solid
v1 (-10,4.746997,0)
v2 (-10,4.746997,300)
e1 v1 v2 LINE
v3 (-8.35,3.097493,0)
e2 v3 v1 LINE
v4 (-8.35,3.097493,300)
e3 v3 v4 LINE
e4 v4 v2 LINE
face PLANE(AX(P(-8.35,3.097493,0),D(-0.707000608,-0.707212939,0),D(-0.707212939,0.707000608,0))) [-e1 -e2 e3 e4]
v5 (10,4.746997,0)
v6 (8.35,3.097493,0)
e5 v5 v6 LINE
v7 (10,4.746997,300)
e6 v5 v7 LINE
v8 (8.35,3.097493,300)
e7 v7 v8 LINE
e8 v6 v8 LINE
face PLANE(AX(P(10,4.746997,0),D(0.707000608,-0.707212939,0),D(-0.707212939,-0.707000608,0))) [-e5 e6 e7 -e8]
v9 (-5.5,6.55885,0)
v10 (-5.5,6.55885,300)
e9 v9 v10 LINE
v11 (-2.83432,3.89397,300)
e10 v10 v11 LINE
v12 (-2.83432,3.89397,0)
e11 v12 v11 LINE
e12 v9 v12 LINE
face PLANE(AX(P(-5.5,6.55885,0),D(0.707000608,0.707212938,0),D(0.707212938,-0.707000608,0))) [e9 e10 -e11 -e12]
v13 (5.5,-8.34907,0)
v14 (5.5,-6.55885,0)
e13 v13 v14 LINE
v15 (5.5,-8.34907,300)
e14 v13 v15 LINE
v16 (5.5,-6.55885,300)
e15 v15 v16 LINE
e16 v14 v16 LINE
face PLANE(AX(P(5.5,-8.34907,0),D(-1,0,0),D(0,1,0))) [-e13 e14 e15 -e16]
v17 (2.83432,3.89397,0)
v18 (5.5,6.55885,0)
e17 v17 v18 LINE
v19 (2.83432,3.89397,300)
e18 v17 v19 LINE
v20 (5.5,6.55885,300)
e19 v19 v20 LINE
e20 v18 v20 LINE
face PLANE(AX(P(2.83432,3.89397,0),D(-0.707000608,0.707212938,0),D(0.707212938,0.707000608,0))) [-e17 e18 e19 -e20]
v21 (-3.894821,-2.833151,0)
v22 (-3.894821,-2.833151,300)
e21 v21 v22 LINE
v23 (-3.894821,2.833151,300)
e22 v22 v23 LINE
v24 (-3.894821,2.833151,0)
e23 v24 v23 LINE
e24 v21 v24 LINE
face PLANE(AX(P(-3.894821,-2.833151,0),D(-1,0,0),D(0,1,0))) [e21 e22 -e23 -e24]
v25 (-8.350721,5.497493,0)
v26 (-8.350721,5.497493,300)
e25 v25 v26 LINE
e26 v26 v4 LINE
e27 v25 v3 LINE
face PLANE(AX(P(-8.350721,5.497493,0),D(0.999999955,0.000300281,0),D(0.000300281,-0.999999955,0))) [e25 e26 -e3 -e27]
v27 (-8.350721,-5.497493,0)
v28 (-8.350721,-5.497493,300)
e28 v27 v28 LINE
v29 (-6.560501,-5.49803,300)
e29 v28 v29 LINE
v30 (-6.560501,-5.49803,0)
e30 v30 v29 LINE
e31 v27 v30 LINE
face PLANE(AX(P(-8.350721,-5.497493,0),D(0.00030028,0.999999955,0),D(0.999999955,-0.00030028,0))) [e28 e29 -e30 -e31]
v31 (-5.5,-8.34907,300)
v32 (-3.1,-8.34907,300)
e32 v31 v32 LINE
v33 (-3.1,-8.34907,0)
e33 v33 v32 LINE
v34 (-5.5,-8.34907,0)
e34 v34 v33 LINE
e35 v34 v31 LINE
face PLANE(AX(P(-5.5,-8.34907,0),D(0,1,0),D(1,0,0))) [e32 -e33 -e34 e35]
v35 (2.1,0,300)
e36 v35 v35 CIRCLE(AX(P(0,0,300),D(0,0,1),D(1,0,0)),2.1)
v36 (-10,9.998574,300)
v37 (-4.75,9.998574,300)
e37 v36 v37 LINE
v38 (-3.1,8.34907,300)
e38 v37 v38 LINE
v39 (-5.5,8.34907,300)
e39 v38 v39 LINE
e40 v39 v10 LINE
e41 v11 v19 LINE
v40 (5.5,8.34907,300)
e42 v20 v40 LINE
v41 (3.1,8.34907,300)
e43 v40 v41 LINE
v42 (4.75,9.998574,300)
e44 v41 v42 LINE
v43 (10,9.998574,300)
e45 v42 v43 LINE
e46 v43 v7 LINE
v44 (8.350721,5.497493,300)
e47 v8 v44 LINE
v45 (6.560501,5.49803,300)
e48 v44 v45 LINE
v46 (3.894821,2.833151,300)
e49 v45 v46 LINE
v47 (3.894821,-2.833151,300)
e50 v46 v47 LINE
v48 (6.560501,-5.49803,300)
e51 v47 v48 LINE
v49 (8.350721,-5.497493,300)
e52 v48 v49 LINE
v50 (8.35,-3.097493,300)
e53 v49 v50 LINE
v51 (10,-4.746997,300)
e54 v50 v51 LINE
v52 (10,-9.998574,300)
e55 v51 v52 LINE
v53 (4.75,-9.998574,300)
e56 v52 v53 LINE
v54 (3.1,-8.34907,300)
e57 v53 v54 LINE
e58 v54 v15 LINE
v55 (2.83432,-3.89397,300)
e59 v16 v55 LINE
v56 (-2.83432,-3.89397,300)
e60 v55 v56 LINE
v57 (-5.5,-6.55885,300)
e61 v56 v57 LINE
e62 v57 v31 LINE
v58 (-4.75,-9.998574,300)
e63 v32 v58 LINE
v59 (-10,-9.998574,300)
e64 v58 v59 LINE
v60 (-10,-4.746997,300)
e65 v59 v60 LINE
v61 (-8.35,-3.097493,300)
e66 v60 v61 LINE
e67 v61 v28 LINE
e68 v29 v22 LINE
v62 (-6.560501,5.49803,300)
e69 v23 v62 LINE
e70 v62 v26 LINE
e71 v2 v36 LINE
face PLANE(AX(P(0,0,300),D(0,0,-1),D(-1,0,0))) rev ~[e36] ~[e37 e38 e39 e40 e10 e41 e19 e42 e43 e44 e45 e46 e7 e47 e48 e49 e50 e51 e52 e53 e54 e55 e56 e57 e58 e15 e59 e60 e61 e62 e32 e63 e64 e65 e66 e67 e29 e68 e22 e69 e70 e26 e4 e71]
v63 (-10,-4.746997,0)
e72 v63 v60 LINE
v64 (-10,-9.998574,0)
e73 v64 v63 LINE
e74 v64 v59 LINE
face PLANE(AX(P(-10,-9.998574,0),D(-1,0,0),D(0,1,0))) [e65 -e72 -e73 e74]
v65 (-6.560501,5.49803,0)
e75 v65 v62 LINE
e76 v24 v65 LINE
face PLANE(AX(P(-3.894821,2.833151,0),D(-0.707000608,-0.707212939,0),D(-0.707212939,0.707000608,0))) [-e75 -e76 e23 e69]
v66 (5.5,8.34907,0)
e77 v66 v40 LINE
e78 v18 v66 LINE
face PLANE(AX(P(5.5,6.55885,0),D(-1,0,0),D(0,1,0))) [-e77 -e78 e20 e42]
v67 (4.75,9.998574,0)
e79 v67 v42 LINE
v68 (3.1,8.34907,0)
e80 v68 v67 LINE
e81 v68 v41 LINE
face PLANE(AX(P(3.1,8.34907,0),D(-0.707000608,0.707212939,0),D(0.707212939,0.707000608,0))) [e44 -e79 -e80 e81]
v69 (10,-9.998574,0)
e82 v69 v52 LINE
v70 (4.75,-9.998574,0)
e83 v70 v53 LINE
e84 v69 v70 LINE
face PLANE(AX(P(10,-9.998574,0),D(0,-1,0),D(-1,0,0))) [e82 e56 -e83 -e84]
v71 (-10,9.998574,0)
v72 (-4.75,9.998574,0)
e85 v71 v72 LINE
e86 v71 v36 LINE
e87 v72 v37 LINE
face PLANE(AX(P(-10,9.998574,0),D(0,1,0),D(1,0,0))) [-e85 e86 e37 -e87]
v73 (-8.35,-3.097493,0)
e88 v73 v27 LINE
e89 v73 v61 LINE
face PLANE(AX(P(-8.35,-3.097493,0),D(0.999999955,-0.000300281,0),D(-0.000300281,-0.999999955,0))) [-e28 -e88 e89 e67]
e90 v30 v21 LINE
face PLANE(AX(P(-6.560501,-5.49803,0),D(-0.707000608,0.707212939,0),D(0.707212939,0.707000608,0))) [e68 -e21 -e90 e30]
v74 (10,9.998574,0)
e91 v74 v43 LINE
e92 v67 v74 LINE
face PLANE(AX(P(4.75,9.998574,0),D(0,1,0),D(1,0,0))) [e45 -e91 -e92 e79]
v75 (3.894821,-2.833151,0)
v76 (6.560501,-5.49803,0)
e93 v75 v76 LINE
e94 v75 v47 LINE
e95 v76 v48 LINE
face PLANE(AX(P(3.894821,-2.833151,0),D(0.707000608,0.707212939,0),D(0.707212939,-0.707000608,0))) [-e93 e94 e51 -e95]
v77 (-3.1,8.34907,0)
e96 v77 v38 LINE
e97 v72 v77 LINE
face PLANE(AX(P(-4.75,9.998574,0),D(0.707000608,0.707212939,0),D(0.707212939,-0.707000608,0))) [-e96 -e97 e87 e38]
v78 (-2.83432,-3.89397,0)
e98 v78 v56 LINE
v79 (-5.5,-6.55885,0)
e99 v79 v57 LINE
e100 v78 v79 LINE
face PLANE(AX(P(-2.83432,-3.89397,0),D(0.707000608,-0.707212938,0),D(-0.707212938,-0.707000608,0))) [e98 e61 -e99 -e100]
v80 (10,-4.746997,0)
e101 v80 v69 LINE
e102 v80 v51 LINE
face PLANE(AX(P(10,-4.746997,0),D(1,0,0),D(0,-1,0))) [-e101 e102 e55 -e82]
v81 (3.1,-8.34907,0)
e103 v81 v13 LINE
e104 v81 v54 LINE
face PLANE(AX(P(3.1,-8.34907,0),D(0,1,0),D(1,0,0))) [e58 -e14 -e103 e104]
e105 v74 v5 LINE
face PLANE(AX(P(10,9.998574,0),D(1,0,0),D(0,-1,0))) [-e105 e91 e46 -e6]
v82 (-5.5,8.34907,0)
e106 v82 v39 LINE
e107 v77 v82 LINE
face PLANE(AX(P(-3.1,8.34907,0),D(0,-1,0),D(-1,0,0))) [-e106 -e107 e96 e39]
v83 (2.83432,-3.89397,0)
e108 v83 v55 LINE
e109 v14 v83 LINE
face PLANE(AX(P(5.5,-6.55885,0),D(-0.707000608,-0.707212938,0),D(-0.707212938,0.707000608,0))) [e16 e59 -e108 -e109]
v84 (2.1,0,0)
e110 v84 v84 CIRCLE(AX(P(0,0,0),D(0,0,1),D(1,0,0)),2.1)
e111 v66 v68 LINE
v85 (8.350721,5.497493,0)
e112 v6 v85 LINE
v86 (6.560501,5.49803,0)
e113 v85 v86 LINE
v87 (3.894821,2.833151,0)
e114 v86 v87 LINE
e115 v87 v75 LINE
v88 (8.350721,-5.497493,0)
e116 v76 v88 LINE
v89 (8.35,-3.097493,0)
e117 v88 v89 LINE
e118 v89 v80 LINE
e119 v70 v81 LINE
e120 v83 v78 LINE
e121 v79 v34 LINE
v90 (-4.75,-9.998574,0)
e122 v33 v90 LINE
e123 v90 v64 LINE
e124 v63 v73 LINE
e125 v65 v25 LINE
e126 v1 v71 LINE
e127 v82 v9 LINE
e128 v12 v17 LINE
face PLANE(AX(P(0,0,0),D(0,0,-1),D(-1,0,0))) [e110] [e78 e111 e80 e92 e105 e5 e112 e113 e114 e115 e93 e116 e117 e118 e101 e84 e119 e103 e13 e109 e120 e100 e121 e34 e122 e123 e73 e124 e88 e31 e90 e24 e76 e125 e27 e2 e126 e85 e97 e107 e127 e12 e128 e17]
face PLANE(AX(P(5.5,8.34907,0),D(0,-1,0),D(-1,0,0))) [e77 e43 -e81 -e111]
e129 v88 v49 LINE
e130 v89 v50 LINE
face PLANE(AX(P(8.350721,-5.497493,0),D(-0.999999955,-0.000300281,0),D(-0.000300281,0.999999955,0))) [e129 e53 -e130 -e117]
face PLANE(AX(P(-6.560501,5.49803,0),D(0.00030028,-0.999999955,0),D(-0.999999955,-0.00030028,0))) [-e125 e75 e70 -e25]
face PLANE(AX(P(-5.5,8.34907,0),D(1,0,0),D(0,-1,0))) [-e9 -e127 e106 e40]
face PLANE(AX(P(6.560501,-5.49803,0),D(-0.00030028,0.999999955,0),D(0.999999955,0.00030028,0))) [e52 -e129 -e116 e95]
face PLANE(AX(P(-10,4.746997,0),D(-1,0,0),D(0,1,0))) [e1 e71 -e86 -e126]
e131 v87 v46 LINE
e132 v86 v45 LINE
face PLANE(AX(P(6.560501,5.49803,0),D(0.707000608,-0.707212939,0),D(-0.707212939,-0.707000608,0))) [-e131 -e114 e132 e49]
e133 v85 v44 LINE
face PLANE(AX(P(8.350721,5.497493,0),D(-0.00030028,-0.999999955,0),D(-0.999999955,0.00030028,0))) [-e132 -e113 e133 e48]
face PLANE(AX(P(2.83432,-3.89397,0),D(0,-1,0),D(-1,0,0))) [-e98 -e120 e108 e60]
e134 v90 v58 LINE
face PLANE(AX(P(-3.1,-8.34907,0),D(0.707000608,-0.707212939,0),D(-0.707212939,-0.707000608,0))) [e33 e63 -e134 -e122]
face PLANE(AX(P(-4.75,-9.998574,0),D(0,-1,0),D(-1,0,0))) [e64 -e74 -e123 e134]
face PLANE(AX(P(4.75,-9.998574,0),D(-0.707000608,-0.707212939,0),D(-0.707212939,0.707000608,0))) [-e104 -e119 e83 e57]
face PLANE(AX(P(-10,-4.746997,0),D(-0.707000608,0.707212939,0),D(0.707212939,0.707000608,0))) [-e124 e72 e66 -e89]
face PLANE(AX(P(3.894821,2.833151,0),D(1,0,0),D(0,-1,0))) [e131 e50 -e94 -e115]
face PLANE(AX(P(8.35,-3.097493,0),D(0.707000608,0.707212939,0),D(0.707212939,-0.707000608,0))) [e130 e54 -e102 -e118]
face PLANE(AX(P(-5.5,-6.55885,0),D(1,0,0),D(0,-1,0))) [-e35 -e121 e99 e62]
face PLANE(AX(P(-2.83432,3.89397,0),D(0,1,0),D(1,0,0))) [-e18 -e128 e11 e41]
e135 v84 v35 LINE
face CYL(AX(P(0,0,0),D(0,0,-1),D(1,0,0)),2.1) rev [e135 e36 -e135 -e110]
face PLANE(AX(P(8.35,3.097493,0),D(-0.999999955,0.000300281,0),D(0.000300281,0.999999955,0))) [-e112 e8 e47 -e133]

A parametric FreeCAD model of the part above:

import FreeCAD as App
import Part
import Sketcher
Q = App.Units.Quantity

doc = App.newDocument("Part")
body = doc.addObject("PartDesign::Body", "Body")

# Sketch on XY plane
sketch1 = doc.addObject("Sketcher::SketchObject", "Sketch")
body.addObject(sketch1)
sketch1.AttachmentSupport = (doc.XY_Plane, [""])
sketch1.MapMode = "FlatFace"
sketch1.addGeometry([
    Part.LineSegment(App.Vector(5.5, 6.6, 0), App.Vector(2.8, 3.9, 0)),  # 0
    Part.LineSegment(App.Vector(2.8, 3.9, 0), App.Vector(-2.8, 3.9, 0)),  # 1
    Part.LineSegment(App.Vector(-2.8, 3.9, 0), App.Vector(-5.5, 6.6, 0)),  # 2
    Part.LineSegment(App.Vector(-5.5, 6.6, 0), App.Vector(-5.5, 8.3, 0)),  # 3
    Part.LineSegment(App.Vector(-5.5, 8.3, 0), App.Vector(-3.1, 8.3, 0)),  # 4
    Part.LineSegment(App.Vector(-3.1, 8.3, 0), App.Vector(-4.8, 10, 0)),  # 5
    Part.LineSegment(App.Vector(-4.8, 10, 0), App.Vector(-10, 10, 0)),  # 6
    Part.LineSegment(App.Vector(-10, 10, 0), App.Vector(-10, 4.7, 0)),  # 7
    Part.LineSegment(App.Vector(-10, 4.7, 0), App.Vector(-8.3, 3.1, 0)),  # 8
    Part.LineSegment(App.Vector(-8.3, 3.1, 0), App.Vector(-8.4, 5.5, 0)),  # 9
    Part.LineSegment(App.Vector(-8.4, 5.5, 0), App.Vector(-6.6, 5.5, 0)),  # 10
    Part.LineSegment(App.Vector(-6.6, 5.5, 0), App.Vector(-3.9, 2.8, 0)),  # 11
    Part.LineSegment(App.Vector(-3.9, 2.8, 0), App.Vector(-3.9, -2.8, 0)),  # 12
    Part.LineSegment(App.Vector(-3.9, -2.8, 0), App.Vector(-6.6, -5.5, 0)),  # 13
    Part.LineSegment(App.Vector(-6.6, -5.5, 0), App.Vector(-8.4, -5.5, 0)),  # 14
    Part.LineSegment(App.Vector(-8.4, -5.5, 0), App.Vector(-8.3, -3.1, 0)),  # 15
    Part.LineSegment(App.Vector(-8.3, -3.1, 0), App.Vector(-10, -4.7, 0)),  # 16
    Part.LineSegment(App.Vector(-10, -4.7, 0), App.Vector(-10, -10, 0)),  # 17
    Part.LineSegment(App.Vector(-10, -10, 0), App.Vector(-4.8, -10, 0)),  # 18
    Part.LineSegment(App.Vector(-4.8, -10, 0), App.Vector(-3.1, -8.3, 0)),  # 19
    Part.LineSegment(App.Vector(-3.1, -8.3, 0), App.Vector(-5.5, -8.3, 0)),  # 20
    Part.LineSegment(App.Vector(-5.5, -8.3, 0), App.Vector(-5.5, -6.6, 0)),  # 21
    Part.LineSegment(App.Vector(-5.5, -6.6, 0), App.Vector(-2.8, -3.9, 0)),  # 22
    Part.LineSegment(App.Vector(-2.8, -3.9, 0), App.Vector(2.8, -3.9, 0)),  # 23
    Part.LineSegment(App.Vector(2.8, -3.9, 0), App.Vector(5.5, -6.6, 0)),  # 24
    Part.LineSegment(App.Vector(5.5, -6.6, 0), App.Vector(5.5, -8.3, 0)),  # 25
    Part.LineSegment(App.Vector(5.5, -8.3, 0), App.Vector(3.1, -8.3, 0)),  # 26
    Part.LineSegment(App.Vector(3.1, -8.3, 0), App.Vector(4.8, -10, 0)),  # 27
    Part.LineSegment(App.Vector(4.8, -10, 0), App.Vector(10, -10, 0)),  # 28
    Part.LineSegment(App.Vector(10, -10, 0), App.Vector(10, -4.7, 0)),  # 29
    Part.LineSegment(App.Vector(10, -4.7, 0), App.Vector(8.3, -3.1, 0)),  # 30
    Part.LineSegment(App.Vector(8.3, -3.1, 0), App.Vector(8.4, -5.5, 0)),  # 31
    Part.LineSegment(App.Vector(8.4, -5.5, 0), App.Vector(6.6, -5.5, 0)),  # 32
    Part.LineSegment(App.Vector(6.6, -5.5, 0), App.Vector(3.9, -2.8, 0)),  # 33
    Part.LineSegment(App.Vector(3.9, -2.8, 0), App.Vector(3.9, 2.8, 0)),  # 34
    Part.LineSegment(App.Vector(3.9, 2.8, 0), App.Vector(6.6, 5.5, 0)),  # 35
    Part.LineSegment(App.Vector(6.6, 5.5, 0), App.Vector(8.4, 5.5, 0)),  # 36
    Part.LineSegment(App.Vector(8.4, 5.5, 0), App.Vector(8.3, 3.1, 0)),  # 37
    Part.LineSegment(App.Vector(8.3, 3.1, 0), App.Vector(10, 4.7, 0)),  # 38
    Part.LineSegment(App.Vector(10, 4.7, 0), App.Vector(10, 10, 0)),  # 39
    Part.LineSegment(App.Vector(10, 10, 0), App.Vector(4.8, 10, 0)),  # 40
    Part.LineSegment(App.Vector(4.8, 10, 0), App.Vector(3.1, 8.3, 0)),  # 41
    Part.LineSegment(App.Vector(3.1, 8.3, 0), App.Vector(5.5, 8.3, 0)),  # 42
    Part.LineSegment(App.Vector(5.5, 8.3, 0), App.Vector(5.5, 6.6, 0)),  # 43
    Part.Circle(App.Vector(0, 0, 0), App.Vector(0, 0, 1), 2.1),  # 44
], False)
sketch1.addConstraint([
    Sketcher.Constraint("Coincident", 0, 2, 1, 1),
    Sketcher.Constraint("Coincident", 1, 2, 2, 1),
    Sketcher.Constraint("Coincident", 2, 2, 3, 1),
    Sketcher.Constraint("Coincident", 3, 2, 4, 1),
    Sketcher.Constraint("Coincident", 4, 2, 5, 1),
    Sketcher.Constraint("Coincident", 5, 2, 6, 1),
    Sketcher.Constraint("Coincident", 6, 2, 7, 1),
    Sketcher.Constraint("Coincident", 7, 2, 8, 1),
    Sketcher.Constraint("Coincident", 8, 2, 9, 1),
    Sketcher.Constraint("Coincident", 9, 2, 10, 1),
    Sketcher.Constraint("Coincident", 10, 2, 11, 1),
    Sketcher.Constraint("Coincident", 11, 2, 12, 1),
    Sketcher.Constraint("Coincident", 12, 2, 13, 1),
    Sketcher.Constraint("Coincident", 13, 2, 14, 1),
    Sketcher.Constraint("Coincident", 14, 2, 15, 1),
    Sketcher.Constraint("Coincident", 15, 2, 16, 1),
    Sketcher.Constraint("Coincident", 16, 2, 17, 1),
    Sketcher.Constraint("Coincident", 17, 2, 18, 1),
    Sketcher.Constraint("Coincident", 18, 2, 19, 1),
    Sketcher.Constraint("Coincident", 19, 2, 20, 1),
    Sketcher.Constraint("Coincident", 20, 2, 21, 1),
    Sketcher.Constraint("Coincident", 21, 2, 22, 1),
    Sketcher.Constraint("Coincident", 22, 2, 23, 1),
    Sketcher.Constraint("Coincident", 23, 2, 24, 1),
    Sketcher.Constraint("Coincident", 24, 2, 25, 1),
    Sketcher.Constraint("Coincident", 25, 2, 26, 1),
    Sketcher.Constraint("Coincident", 26, 2, 27, 1),
    Sketcher.Constraint("Coincident", 27, 2, 28, 1),
    Sketcher.Constraint("Coincident", 28, 2, 29, 1),
    Sketcher.Constraint("Coincident", 29, 2, 30, 1),
    Sketcher.Constraint("Coincident", 30, 2, 31, 1),
    Sketcher.Constraint("Coincident", 31, 2, 32, 1),
    Sketcher.Constraint("Coincident", 32, 2, 33, 1),
    Sketcher.Constraint("Coincident", 33, 2, 34, 1),
    Sketcher.Constraint("Coincident", 34, 2, 35, 1),
    Sketcher.Constraint("Coincident", 35, 2, 36, 1),
    Sketcher.Constraint("Coincident", 36, 2, 37, 1),
    Sketcher.Constraint("Coincident", 37, 2, 38, 1),
    Sketcher.Constraint("Coincident", 38, 2, 39, 1),
    Sketcher.Constraint("Coincident", 39, 2, 40, 1),
    Sketcher.Constraint("Coincident", 40, 2, 41, 1),
    Sketcher.Constraint("Coincident", 41, 2, 42, 1),
    Sketcher.Constraint("Coincident", 42, 2, 43, 1),
    Sketcher.Constraint("Coincident", 43, 2, 0, 1),
    Sketcher.Constraint("Horizontal", 1),
    Sketcher.Constraint("Vertical", 3),
    Sketcher.Constraint("Horizontal", 4),
    Sketcher.Constraint("Horizontal", 6),
    Sketcher.Constraint("Vertical", 7),
    Sketcher.Constraint("Vertical", 12),
    Sketcher.Constraint("Vertical", 17),
    Sketcher.Constraint("Horizontal", 18),
    Sketcher.Constraint("Horizontal", 20),
    Sketcher.Constraint("Vertical", 21),
    Sketcher.Constraint("Horizontal", 23),
    Sketcher.Constraint("Vertical", 25),
    Sketcher.Constraint("Horizontal", 26),
    Sketcher.Constraint("Horizontal", 28),
    Sketcher.Constraint("Vertical", 29),
    Sketcher.Constraint("Vertical", 34),
    Sketcher.Constraint("Vertical", 39),
    Sketcher.Constraint("Horizontal", 40),
    Sketcher.Constraint("Horizontal", 42),
    Sketcher.Constraint("Vertical", 43),
    Sketcher.Constraint("Coincident", 44, 3, -1, 1),
    Sketcher.Constraint("Symmetric", 0, 2, 22, 2, -1, 1),
    Sketcher.Constraint("Symmetric", 2, 2, 24, 2, -1, 1),
    Sketcher.Constraint("Symmetric", 4, 2, 26, 2, -1, 1),
    Sketcher.Constraint("Symmetric", 5, 2, 27, 2, -1, 1),
    Sketcher.Constraint("Symmetric", 7, 2, 29, 2, -1, 1),
    Sketcher.Constraint("Symmetric", 8, 2, 30, 2, -1, 1),
    Sketcher.Constraint("Symmetric", 9, 2, 31, 2, -1, 1),
    Sketcher.Constraint("Symmetric", 10, 2, 32, 2, -1, 1),
    Sketcher.Constraint("Symmetric", 11, 2, 33, 2, -1, 1),
    Sketcher.Constraint("Symmetric", 13, 2, 35, 2, -1, 1),
    Sketcher.Constraint("Symmetric", 14, 2, 36, 2, -1, 1),
    Sketcher.Constraint("Symmetric", 15, 2, 37, 2, -1, 1),
    Sketcher.Constraint("Symmetric", 16, 2, 38, 2, -1, 1),
    Sketcher.Constraint("Symmetric", 18, 2, 40, 2, -1, 1),
    Sketcher.Constraint("Symmetric", 19, 2, 41, 2, -1, 1),
    Sketcher.Constraint("Symmetric", 21, 2, 43, 2, -1, 1),
    Sketcher.Constraint("Symmetric", 21, 2, 24, 2, -2),
    Sketcher.Constraint("Symmetric", 19, 2, 26, 2, -2),
    Sketcher.Constraint("Symmetric", 18, 2, 27, 2, -2),
    Sketcher.Constraint("Symmetric", 16, 2, 29, 2, -2),
    Sketcher.Constraint("Symmetric", 15, 2, 30, 2, -2),
    Sketcher.Constraint("Symmetric", 14, 2, 31, 2, -2),
    Sketcher.Constraint("Symmetric", 13, 2, 32, 2, -2),
    Sketcher.Constraint("Parallel", 2, 5),
    Sketcher.Constraint("Parallel", 5, 8),
    Sketcher.Constraint("Perpendicular", 9, 10),
    Sketcher.Constraint("Parallel", 8, 11),
    Sketcher.Constraint("Parallel", 0, 13),
    Sketcher.Constraint("Parallel", 13, 16),
    Sketcher.Constraint("Parallel", 11, 24),
    Sketcher.Constraint("Parallel", 22, 35),
    Sketcher.Constraint("Equal", 5, 8),
    Sketcher.Constraint("Equal", 2, 11),
    Sketcher.Constraint("Diameter", 44, Q("4.2 mm")),
    Sketcher.Constraint("DistanceX", 4, 1, 4, 2, Q("2.4 mm")),
    Sketcher.Constraint("DistanceX", 6, 2, -1, 1, Q("10 mm")),
    Sketcher.Constraint("Distance", 9, Q("2.4 mm")),
    Sketcher.Constraint("DistanceX", 6, 2, 6, 1, Q("5.25 mm")),
    Sketcher.Constraint("DistanceX", 2, 2, -1, 1, Q("5.5 mm")),
    Sketcher.Constraint("DistanceY", 12, 2, 12, 1, Q("5.666302 mm")),
    Sketcher.Constraint("DistanceY", 13, 2, 1, 2, Q("9.392001 mm")),
    Sketcher.Constraint("DistanceX", 1, 2, 1, 1, Q("5.668641 mm")),
    Sketcher.Constraint("DistanceY", 3, 1, 3, 2, Q("1.79022 mm")),
    Sketcher.Constraint("DistanceX", 10, 2, -1, 1, Q("6.560501 mm")),
    Sketcher.Constraint("DistanceY", 1, 2, 3, 2, Q("4.455099 mm")),
    Sketcher.Constraint("DistanceX", 14, 2, 12, 2, Q("4.455899 mm")),
])
pad1 = doc.addObject("PartDesign::Pad", "Pad")
body.addObject(pad1)
pad1.Profile = sketch1
pad1.Length = 300

doc.recompute()
